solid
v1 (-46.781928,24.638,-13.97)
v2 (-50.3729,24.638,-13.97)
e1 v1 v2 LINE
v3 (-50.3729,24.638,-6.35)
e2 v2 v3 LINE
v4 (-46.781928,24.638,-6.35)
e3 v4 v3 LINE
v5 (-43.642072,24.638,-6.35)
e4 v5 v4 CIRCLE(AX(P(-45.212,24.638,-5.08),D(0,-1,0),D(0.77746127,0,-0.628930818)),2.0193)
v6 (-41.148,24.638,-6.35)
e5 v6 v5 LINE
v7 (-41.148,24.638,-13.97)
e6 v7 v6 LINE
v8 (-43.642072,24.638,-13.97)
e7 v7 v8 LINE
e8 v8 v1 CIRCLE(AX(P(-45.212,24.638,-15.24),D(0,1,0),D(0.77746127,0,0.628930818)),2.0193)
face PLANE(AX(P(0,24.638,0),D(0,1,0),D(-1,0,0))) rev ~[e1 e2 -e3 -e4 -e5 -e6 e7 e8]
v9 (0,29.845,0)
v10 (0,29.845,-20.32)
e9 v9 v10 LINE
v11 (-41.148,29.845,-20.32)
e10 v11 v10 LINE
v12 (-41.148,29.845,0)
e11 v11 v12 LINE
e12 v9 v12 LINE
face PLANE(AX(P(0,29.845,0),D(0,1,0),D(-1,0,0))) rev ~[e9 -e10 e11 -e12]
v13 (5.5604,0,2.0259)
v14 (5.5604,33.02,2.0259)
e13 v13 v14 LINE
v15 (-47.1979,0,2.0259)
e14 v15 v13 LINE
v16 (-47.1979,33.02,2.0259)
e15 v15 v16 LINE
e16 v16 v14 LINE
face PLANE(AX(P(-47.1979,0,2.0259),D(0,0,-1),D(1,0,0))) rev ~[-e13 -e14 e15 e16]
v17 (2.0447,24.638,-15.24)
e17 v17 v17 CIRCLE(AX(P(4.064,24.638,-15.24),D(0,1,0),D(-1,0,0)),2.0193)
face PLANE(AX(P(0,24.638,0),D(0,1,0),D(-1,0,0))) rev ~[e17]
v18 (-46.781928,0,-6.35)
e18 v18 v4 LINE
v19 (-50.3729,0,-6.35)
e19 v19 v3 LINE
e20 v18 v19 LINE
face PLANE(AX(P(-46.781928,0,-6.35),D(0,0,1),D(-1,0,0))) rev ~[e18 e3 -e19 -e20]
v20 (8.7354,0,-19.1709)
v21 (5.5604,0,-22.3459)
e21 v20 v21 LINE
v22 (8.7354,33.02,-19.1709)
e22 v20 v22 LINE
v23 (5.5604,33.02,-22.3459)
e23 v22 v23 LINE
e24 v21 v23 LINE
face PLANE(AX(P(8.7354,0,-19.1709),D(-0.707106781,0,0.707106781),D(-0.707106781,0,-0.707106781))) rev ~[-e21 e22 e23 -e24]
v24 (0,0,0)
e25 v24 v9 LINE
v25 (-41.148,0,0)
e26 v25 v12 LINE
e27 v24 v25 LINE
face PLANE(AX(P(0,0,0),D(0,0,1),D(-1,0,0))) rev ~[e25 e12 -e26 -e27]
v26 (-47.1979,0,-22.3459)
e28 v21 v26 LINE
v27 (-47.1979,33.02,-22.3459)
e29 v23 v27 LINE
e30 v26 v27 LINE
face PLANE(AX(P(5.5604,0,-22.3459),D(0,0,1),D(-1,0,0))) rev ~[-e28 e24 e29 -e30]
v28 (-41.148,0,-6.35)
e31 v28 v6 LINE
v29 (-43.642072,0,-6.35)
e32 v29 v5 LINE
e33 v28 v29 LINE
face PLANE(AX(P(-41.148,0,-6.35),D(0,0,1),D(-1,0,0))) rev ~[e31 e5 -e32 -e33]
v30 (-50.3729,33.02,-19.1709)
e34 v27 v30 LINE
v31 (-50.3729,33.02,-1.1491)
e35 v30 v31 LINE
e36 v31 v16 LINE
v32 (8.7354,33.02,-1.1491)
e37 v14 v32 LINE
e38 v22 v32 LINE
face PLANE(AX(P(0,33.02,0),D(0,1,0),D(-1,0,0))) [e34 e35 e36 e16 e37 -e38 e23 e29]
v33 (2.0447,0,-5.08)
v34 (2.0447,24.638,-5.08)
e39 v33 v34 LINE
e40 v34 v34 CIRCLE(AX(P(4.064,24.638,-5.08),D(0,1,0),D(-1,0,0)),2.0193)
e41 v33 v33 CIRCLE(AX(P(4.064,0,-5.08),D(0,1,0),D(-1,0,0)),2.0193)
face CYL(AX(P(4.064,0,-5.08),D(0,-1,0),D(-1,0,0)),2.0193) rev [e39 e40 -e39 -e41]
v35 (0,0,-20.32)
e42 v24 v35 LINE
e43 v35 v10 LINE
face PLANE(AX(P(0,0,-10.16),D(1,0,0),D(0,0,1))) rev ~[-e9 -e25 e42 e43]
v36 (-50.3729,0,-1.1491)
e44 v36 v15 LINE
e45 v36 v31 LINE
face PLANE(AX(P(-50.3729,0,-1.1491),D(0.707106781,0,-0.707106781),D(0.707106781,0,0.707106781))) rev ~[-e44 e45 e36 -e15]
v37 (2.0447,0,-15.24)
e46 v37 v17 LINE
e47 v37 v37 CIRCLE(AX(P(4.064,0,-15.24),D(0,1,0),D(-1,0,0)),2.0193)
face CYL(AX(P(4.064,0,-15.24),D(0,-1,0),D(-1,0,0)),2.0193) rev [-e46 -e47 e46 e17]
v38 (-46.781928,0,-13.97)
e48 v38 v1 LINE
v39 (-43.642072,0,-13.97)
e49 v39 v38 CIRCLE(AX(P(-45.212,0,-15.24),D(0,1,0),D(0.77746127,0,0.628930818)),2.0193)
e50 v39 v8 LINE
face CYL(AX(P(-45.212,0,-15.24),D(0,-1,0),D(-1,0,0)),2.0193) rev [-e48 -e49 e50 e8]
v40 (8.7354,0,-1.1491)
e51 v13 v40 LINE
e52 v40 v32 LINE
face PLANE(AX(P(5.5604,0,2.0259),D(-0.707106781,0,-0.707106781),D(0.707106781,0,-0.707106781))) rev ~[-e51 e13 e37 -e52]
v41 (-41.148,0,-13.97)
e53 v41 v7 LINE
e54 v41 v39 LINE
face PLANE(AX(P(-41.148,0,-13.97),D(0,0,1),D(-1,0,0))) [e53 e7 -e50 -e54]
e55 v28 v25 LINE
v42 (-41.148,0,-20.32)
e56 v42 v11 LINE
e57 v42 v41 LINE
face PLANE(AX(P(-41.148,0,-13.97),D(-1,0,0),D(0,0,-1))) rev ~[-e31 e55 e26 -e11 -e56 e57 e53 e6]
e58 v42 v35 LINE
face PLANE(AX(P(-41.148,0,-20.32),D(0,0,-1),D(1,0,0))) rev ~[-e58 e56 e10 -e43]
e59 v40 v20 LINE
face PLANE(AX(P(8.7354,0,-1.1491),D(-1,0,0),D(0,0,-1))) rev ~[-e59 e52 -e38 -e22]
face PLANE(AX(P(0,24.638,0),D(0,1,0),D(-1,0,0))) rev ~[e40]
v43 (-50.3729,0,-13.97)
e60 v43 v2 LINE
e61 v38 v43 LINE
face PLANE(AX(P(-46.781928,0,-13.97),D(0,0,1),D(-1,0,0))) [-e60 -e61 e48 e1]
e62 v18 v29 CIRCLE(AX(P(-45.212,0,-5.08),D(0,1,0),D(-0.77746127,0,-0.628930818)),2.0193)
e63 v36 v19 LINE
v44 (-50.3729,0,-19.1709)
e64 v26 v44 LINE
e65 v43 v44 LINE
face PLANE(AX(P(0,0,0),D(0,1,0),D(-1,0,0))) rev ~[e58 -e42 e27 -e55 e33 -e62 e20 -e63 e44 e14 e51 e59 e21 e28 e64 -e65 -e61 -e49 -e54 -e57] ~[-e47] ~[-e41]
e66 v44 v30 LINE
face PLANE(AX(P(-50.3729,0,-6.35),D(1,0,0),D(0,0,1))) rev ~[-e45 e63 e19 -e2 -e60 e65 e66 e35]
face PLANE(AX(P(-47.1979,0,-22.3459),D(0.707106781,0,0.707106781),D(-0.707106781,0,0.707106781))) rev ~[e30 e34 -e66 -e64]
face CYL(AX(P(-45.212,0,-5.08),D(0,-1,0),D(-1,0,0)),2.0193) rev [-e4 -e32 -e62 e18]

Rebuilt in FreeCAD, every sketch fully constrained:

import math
import FreeCAD as App
import Part
import Sketcher
from FreeCAD import Vector
Q = App.Units.Quantity

doc = App.newDocument("Part")
body = doc.addObject("PartDesign::Body", "Body")

# Sketch on XZ plane
sketch1 = body.newObject("Sketcher::SketchObject", "Sketch")
sketch1.AttachmentSupport = (doc.getObject("XZ_Plane"), [""])
sketch1.MapMode = "FlatFace"
sketch1.addGeometry(Part.LineSegment(Vector(8.7, -1.1, 0), Vector(8.7, -19.2, 0)), False)
sketch1.addGeometry(Part.LineSegment(Vector(8.7, -19.2, 0), Vector(5.6, -22.3, 0)), False)
sketch1.addGeometry(Part.LineSegment(Vector(5.6, -22.3, 0), Vector(-47.2, -22.3, 0)), False)
sketch1.addGeometry(Part.LineSegment(Vector(-47.2, -22.3, 0), Vector(-50.4, -19.2, 0)), False)
sketch1.addGeometry(Part.LineSegment(Vector(-50.4, -19.2, 0), Vector(-50.4, -1.1, 0)), False)
sketch1.addGeometry(Part.LineSegment(Vector(-50.4, -1.1, 0), Vector(-47.2, 2, 0)), False)
sketch1.addGeometry(Part.LineSegment(Vector(-47.2, 2, 0), Vector(5.6, 2, 0)), False)
sketch1.addGeometry(Part.LineSegment(Vector(5.6, 2, 0), Vector(8.7, -1.1, 0)), False)
sketch1.addConstraint(Sketcher.Constraint("Coincident", 0, 2, 1, 1))
sketch1.addConstraint(Sketcher.Constraint("Coincident", 1, 2, 2, 1))
sketch1.addConstraint(Sketcher.Constraint("Coincident", 2, 2, 3, 1))
sketch1.addConstraint(Sketcher.Constraint("Coincident", 3, 2, 4, 1))
sketch1.addConstraint(Sketcher.Constraint("Coincident", 4, 2, 5, 1))
sketch1.addConstraint(Sketcher.Constraint("Coincident", 5, 2, 6, 1))
sketch1.addConstraint(Sketcher.Constraint("Coincident", 6, 2, 7, 1))
sketch1.addConstraint(Sketcher.Constraint("Coincident", 7, 2, 0, 1))
sketch1.addConstraint(Sketcher.Constraint("Vertical", 0))
sketch1.addConstraint(Sketcher.Constraint("Horizontal", 2))
sketch1.addConstraint(Sketcher.Constraint("Vertical", 4))
sketch1.addConstraint(Sketcher.Constraint("Horizontal", 6))
sketch1.addConstraint(Sketcher.Constraint("Perpendicular", 1, 3))
sketch1.addConstraint(Sketcher.Constraint("Perpendicular", 3, 5))
sketch1.addConstraint(Sketcher.Constraint("Perpendicular", 5, 7))
sketch1.addConstraint(Sketcher.Constraint("Horizontal", 0, 2, 3, 2))
sketch1.addConstraint(Sketcher.Constraint("Horizontal", 4, 2, 7, 2))
sketch1.addConstraint(Sketcher.Constraint("Vertical", 2, 2, 5, 2))
sketch1.addConstraint(Sketcher.Constraint("Vertical", 1, 2, 6, 2))
sketch1.addConstraint(Sketcher.Constraint("DistanceX", 1, 2, 0, 2, Q("0.125 in")))
sketch1.addConstraint(Sketcher.Constraint("DistanceX", 2, 2, 2, 1, Q("2.0771 in")))
sketch1.addConstraint(Sketcher.Constraint("DistanceY", 0, 2, 0, 1, 18.0218))
sketch1.addConstraint(Sketcher.Constraint("DistanceX", -1, 1, 0, 2, 8.7354))
sketch1.addConstraint(Sketcher.Constraint("DistanceY", 0, 2, -1, 1, 19.171))
pad1 = body.newObject("PartDesign::Pad", "Pad")
pad1.Profile = sketch1
pad1.Length = Q("1.3 in")
pad1.Reversed = True

# Sketch on XZ plane
sketch2 = body.newObject("Sketcher::SketchObject", "Sketch001")
sketch2.AttachmentSupport = (doc.getObject("XZ_Plane"), [""])
sketch2.MapMode = "FlatFace"
sketch2.addGeometry(Part.Circle(Vector(-45.2, -15.2, 0), Vector(0, 0, 1), 2), False)
sketch2.addGeometry(Part.Circle(Vector(4.1, -15.2, 0), Vector(0, 0, 1), 2), False)
sketch2.addConstraint(Sketcher.Constraint("Equal", 0, 1))
sketch2.addConstraint(Sketcher.Constraint("Horizontal", 0, 3, 1, 3))
sketch2.addConstraint(Sketcher.Constraint("Diameter", 0, Q("0.159 in")))
sketch2.addConstraint(Sketcher.Constraint("DistanceX", -1, 1, 1, 3, Q("0.16 in")))
sketch2.addConstraint(Sketcher.Constraint("DistanceY", 0, 3, -1, 1, Q("0.6 in")))
sketch2.addConstraint(Sketcher.Constraint("DistanceX", 0, 3, -1, 1, Q("1.78 in")))
pocket1 = body.newObject("PartDesign::Pocket", "Pocket")
pocket1.Profile = sketch2
pocket1.Length = Q("0.97 in")

# Sketch on XZ plane
sketch3 = body.newObject("Sketcher::SketchObject", "Sketch002")
sketch3.AttachmentSupport = (doc.getObject("XZ_Plane"), [""])
sketch3.MapMode = "FlatFace"
sketch3.addGeometry(Part.LineSegment(Vector(-41, 0, 0), Vector(0, 0, 0)), False)
sketch3.addGeometry(Part.LineSegment(Vector(0, 0, 0), Vector(0, -20, 0)), False)
sketch3.addGeometry(Part.LineSegment(Vector(0, -20, 0), Vector(-41, -20, 0)), False)
sketch3.addGeometry(Part.LineSegment(Vector(-41, -20, 0), Vector(-41, 0, 0)), False)
sketch3.addConstraint(Sketcher.Constraint("Coincident", 0, 2, 1, 1))
sketch3.addConstraint(Sketcher.Constraint("Coincident", 1, 2, 2, 1))
sketch3.addConstraint(Sketcher.Constraint("Coincident", 2, 2, 3, 1))
sketch3.addConstraint(Sketcher.Constraint("Coincident", 3, 2, 0, 1))
sketch3.addConstraint(Sketcher.Constraint("Horizontal", 0))
sketch3.addConstraint(Sketcher.Constraint("Vertical", 1))
sketch3.addConstraint(Sketcher.Constraint("Horizontal", 2))
sketch3.addConstraint(Sketcher.Constraint("Vertical", 3))
sketch3.addConstraint(Sketcher.Constraint("Coincident", 0, 2, -1, 1))
sketch3.addConstraint(Sketcher.Constraint("DistanceY", 1, 2, 1, 1, Q("0.8 in")))
sketch3.addConstraint(Sketcher.Constraint("DistanceX", 0, 1, 0, 2, Q("1.62 in")))
pocket2 = body.newObject("PartDesign::Pocket", "Pocket001")
pocket2.Profile = sketch3
pocket2.Length = Q("1.175 in")

# Sketch on XZ plane
sketch4 = body.newObject("Sketcher::SketchObject", "Sketch003")
sketch4.AttachmentSupport = (doc.getObject("XZ_Plane"), [""])
sketch4.MapMode = "FlatFace"
sketch4.addGeometry(Part.LineSegment(Vector(-43.6, -6.3, 0), Vector(-41.1, -6.3, 0)), False)
sketch4.addGeometry(Part.LineSegment(Vector(-41.1, -6.3, 0), Vector(-41.1, -14, 0)), False)
sketch4.addGeometry(Part.LineSegment(Vector(-41.1, -14, 0), Vector(-43.6, -14, 0)), False)
sketch4.addGeometry(Part.ArcOfCircle(Part.Circle(Vector(-45.2, -15.2, 0), Vector(0, 0, 1), 2), math.radians(39), math.radians(141)), False)
sketch4.addGeometry(Part.LineSegment(Vector(-46.8, -14, 0), Vector(-50.4, -14, 0)), False)
sketch4.addGeometry(Part.LineSegment(Vector(-50.4, -14, 0), Vector(-50.4, -6.3, 0)), False)
sketch4.addGeometry(Part.LineSegment(Vector(-50.4, -6.3, 0), Vector(-46.8, -6.3, 0)), False)
sketch4.addGeometry(Part.ArcOfCircle(Part.Circle(Vector(-45.2, -5.1, 0), Vector(0, 0, 1), 2), math.radians(-39), math.radians(219)), False)
sketch4.addGeometry(Part.Circle(Vector(4.1, -5.1, 0), Vector(0, 0, 1), 2), False)
sketch4.addConstraint(Sketcher.Constraint("Coincident", 0, 2, 1, 1))
sketch4.addConstraint(Sketcher.Constraint("Coincident", 1, 2, 2, 1))
sketch4.addConstraint(Sketcher.Constraint("Coincident", 2, 2, 3, 1))
sketch4.addConstraint(Sketcher.Constraint("Coincident", 3, 2, 4, 1))
sketch4.addConstraint(Sketcher.Constraint("Coincident", 4, 2, 5, 1))
sketch4.addConstraint(Sketcher.Constraint("Coincident", 5, 2, 6, 1))
sketch4.addConstraint(Sketcher.Constraint("Coincident", 6, 2, 7, 2))
sketch4.addConstraint(Sketcher.Constraint("Coincident", 7, 1, 0, 1))
sketch4.addConstraint(Sketcher.Constraint("Horizontal", 0))
sketch4.addConstraint(Sketcher.Constraint("Vertical", 1))
sketch4.addConstraint(Sketcher.Constraint("Horizontal", 2))
sketch4.addConstraint(Sketcher.Constraint("Horizontal", 4))
sketch4.addConstraint(Sketcher.Constraint("Vertical", 5))
sketch4.addConstraint(Sketcher.Constraint("Horizontal", 6))
sketch4.addConstraint(Sketcher.Constraint("Equal", 3, 7))
sketch4.addConstraint(Sketcher.Constraint("Equal", 7, 8))
sketch4.addConstraint(Sketcher.Constraint("Horizontal", 7, 3, 8, 3))
sketch4.addConstraint(Sketcher.Constraint("Horizontal", 2, 2, 3, 2))
sketch4.addConstraint(Sketcher.Constraint("Horizontal", 0, 2, 5, 2))
sketch4.addConstraint(Sketcher.Constraint("Vertical", 3, 3, 7, 3))
sketch4.addConstraint(Sketcher.Constraint("Vertical", 3, 2, 6, 2))
sketch4.addConstraint(Sketcher.Constraint("Diameter", 8, Q("0.159 in")))
sketch4.addConstraint(Sketcher.Constraint("DistanceY", 7, 3, -1, 1, Q("0.2 in")))
sketch4.addConstraint(Sketcher.Constraint("DistanceX", -1, 1, 8, 3, Q("0.16 in")))
sketch4.addConstraint(Sketcher.Constraint("DistanceX", 0, 2, -1, 1, Q("1.62 in")))
sketch4.addConstraint(Sketcher.Constraint("DistanceX", 7, 3, 0, 2, Q("0.16 in")))
sketch4.addConstraint(Sketcher.Constraint("DistanceY", 1, 2, 1, 1, Q("0.3 in")))
sketch4.addConstraint(Sketcher.Constraint("DistanceY", 3, 3, -1, 1, Q("0.6 in")))
sketch4.addConstraint(Sketcher.Constraint("DistanceX", 4, 2, 2, 2, Q("0.265 in")))
pocket3 = body.newObject("PartDesign::Pocket", "Pocket002")
pocket3.Profile = sketch4
pocket3.Length = Q("0.97 in")

doc.recompute()
